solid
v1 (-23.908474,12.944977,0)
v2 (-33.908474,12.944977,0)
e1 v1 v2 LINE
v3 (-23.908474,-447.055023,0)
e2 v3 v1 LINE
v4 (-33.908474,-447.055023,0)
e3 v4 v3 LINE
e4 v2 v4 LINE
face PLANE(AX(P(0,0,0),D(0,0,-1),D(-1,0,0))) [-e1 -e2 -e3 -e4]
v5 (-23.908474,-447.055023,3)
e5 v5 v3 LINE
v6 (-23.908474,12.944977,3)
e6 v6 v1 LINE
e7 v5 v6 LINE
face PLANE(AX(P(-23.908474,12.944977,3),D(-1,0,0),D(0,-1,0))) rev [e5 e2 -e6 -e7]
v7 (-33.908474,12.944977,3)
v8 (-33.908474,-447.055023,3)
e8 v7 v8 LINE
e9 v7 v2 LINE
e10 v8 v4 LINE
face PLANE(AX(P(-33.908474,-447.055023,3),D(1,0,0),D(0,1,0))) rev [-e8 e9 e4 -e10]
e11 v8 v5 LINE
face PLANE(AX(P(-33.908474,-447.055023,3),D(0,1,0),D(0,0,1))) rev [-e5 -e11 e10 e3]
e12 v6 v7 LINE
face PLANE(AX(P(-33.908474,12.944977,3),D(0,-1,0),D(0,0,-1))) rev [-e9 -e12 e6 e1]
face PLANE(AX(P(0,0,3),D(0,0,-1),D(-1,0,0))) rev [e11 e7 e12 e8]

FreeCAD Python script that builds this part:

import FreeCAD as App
import Part
import Sketcher

V = App.Vector

doc = App.newDocument("Part")
body = doc.addObject("PartDesign::Body", "Body")

sketch1 = body.newObject("Sketcher::SketchObject", "Sketch")
sketch1.AttachmentSupport = (doc.getObject("XY_Plane"), [""])
sketch1.MapMode = "FlatFace"
sketch1.addGeometry([
    Part.LineSegment(V(-34, 13, 0), V(-34, -447, 0)),
    Part.LineSegment(V(-34, -447, 0), V(-24, -447, 0)),
    Part.LineSegment(V(-24, -447, 0), V(-24, 13, 0)),
    Part.LineSegment(V(-24, 13, 0), V(-34, 13, 0)),
], False)
sketch1.addConstraint([
    Sketcher.Constraint("Coincident", 0, 2, 1, 1),
    Sketcher.Constraint("Coincident", 1, 2, 2, 1),
    Sketcher.Constraint("Coincident", 2, 2, 3, 1),
    Sketcher.Constraint("Coincident", 3, 2, 0, 1),
    Sketcher.Constraint("Vertical", 0),
    Sketcher.Constraint("Horizontal", 1),
    Sketcher.Constraint("Vertical", 2),
    Sketcher.Constraint("Horizontal", 3),
    Sketcher.Constraint("DistanceX", 1, 1, 1, 2, 10.0),
    Sketcher.Constraint("DistanceY", 0, 2, 0, 1, 460.0),
    Sketcher.Constraint("DistanceX", 0, 2, -1, 1, 33.908474),
    Sketcher.Constraint("DistanceY", 0, 2, -1, 1, 447.055023),
])
pad1 = body.newObject("PartDesign::Pad", "Pad")
pad1.Profile = sketch1
pad1.Length = 3

doc.recompute()
